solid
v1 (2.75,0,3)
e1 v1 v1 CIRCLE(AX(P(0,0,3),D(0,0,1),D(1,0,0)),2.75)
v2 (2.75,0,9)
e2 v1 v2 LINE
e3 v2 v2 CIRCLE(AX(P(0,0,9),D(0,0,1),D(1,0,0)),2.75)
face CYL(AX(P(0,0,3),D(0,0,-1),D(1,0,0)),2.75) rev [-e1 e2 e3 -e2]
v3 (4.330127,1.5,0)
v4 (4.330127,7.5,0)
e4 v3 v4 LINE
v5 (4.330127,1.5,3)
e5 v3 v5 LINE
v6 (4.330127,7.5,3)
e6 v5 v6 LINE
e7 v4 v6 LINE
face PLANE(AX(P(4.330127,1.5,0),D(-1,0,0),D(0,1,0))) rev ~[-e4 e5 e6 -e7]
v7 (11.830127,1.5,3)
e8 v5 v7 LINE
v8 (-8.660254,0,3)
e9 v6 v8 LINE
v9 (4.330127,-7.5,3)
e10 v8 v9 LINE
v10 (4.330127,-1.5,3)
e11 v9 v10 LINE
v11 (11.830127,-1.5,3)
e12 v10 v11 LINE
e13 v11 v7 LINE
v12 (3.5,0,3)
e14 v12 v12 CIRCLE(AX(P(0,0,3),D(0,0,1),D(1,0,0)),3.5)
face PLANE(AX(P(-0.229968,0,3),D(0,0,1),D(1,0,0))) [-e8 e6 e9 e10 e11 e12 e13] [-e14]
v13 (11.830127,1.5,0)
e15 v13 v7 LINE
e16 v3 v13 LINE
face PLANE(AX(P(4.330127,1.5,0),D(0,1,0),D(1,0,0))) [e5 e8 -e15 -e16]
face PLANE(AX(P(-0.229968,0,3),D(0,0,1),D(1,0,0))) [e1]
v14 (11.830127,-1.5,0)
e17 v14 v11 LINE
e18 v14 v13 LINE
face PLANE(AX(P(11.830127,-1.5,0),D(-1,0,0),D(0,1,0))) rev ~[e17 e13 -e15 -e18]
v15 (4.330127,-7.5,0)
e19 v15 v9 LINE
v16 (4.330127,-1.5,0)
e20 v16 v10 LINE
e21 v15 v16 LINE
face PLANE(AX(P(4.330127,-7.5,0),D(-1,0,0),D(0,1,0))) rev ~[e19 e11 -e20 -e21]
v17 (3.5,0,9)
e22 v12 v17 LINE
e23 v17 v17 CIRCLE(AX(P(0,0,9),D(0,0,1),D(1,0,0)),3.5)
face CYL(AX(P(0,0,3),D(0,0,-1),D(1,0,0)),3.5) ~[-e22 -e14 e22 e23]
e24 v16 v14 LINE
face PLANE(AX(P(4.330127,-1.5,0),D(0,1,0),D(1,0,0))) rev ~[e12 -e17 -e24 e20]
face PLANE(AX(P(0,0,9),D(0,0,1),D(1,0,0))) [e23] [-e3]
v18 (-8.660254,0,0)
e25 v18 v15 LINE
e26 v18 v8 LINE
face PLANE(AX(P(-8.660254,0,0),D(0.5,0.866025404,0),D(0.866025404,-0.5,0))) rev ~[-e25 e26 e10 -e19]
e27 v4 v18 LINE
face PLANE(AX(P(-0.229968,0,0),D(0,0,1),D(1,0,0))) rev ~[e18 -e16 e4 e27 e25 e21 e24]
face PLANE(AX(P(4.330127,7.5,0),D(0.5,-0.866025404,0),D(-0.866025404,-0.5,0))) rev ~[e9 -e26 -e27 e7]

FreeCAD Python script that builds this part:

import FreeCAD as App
import Part
import Sketcher
Q = App.Units.Quantity


def add_polygon(sketch, points):
    """Adds a closed chain of lines whose ends are joined by coincident constraints."""
    first, n = sketch.GeometryCount, len(points)
    for a, b in zip(points, points[1:] + points[:1]):
        sketch.addGeometry(Part.LineSegment(App.Vector(*a, 0), App.Vector(*b, 0)), False)
    for i in range(n):
        sketch.addConstraint(Sketcher.Constraint("Coincident", first + i, 2, first + (i + 1) % n, 1))

doc = App.newDocument("Part")
body = doc.addObject("PartDesign::Body", "Body")

# Sketch on XY plane
sketch1 = body.newObject("Sketcher::SketchObject", "Sketch")
sketch1.AttachmentSupport = (doc.getObject("XY_Plane"), [""])
sketch1.MapMode = "FlatFace"
add_polygon(sketch1, [(4.3, 1.5), (4.3, 7.5), (-8.7, 0), (4.3, -7.5), (4.3, -1.5), (11.8, -1.5), (11.8, 1.5)])  # lines 0-6
sketch1.addConstraint([
    Sketcher.Constraint("Vertical", 0),
    Sketcher.Constraint("Vertical", 3),
    Sketcher.Constraint("Horizontal", 4),
    Sketcher.Constraint("Vertical", 5),
    Sketcher.Constraint("Horizontal", 6),
    Sketcher.Constraint("Symmetric", 0, 2, 2, 2, -1),
    Sketcher.Constraint("PointOnObject", 1, 2, -1),
    Sketcher.Constraint("Equal", 0, 3),
    Sketcher.Constraint("DistanceY", 0, 1, 0, 2, Q("6 mm")),
    Sketcher.Constraint("DistanceY", 5, 1, 5, 2, Q("3 mm")),
    Sketcher.Constraint("Angle", 1, Q("-150 deg")),
    Sketcher.Constraint("DistanceX", 4, 1, 4, 2, Q("7.5 mm")),
    Sketcher.Constraint("DistanceX", -1, 1, 0, 2, Q("4.330127 mm")),
])
pad1 = body.newObject("PartDesign::Pad", "Pad")
pad1.Profile = sketch1
pad1.Length = 3

# Sketch on XY plane
sketch2 = body.newObject("Sketcher::SketchObject", "Sketch001")
sketch2.AttachmentSupport = (doc.getObject("XY_Plane"), [""])
sketch2.MapMode = "FlatFace"
sketch2.AttachmentOffset = App.Placement(App.Vector(0, 0, 3), App.Rotation())
sketch2.addGeometry([
    Part.Circle(App.Vector(0, 0, 0), App.Vector(0, 0, 1), 3.5),
    Part.Circle(App.Vector(0, 0, 0), App.Vector(0, 0, 1), 2.8),
], False)
sketch2.addConstraint([
    Sketcher.Constraint("Coincident", 0, 3, -1, 1),
    Sketcher.Constraint("Coincident", 1, 3, -1, 1),
    Sketcher.Constraint("Diameter", 0, Q("7 mm")),
    Sketcher.Constraint("Diameter", 1, Q("5.5 mm")),
])
pad2 = body.newObject("PartDesign::Pad", "Pad001")
pad2.Profile = sketch2
pad2.Length = 6

doc.recompute()
